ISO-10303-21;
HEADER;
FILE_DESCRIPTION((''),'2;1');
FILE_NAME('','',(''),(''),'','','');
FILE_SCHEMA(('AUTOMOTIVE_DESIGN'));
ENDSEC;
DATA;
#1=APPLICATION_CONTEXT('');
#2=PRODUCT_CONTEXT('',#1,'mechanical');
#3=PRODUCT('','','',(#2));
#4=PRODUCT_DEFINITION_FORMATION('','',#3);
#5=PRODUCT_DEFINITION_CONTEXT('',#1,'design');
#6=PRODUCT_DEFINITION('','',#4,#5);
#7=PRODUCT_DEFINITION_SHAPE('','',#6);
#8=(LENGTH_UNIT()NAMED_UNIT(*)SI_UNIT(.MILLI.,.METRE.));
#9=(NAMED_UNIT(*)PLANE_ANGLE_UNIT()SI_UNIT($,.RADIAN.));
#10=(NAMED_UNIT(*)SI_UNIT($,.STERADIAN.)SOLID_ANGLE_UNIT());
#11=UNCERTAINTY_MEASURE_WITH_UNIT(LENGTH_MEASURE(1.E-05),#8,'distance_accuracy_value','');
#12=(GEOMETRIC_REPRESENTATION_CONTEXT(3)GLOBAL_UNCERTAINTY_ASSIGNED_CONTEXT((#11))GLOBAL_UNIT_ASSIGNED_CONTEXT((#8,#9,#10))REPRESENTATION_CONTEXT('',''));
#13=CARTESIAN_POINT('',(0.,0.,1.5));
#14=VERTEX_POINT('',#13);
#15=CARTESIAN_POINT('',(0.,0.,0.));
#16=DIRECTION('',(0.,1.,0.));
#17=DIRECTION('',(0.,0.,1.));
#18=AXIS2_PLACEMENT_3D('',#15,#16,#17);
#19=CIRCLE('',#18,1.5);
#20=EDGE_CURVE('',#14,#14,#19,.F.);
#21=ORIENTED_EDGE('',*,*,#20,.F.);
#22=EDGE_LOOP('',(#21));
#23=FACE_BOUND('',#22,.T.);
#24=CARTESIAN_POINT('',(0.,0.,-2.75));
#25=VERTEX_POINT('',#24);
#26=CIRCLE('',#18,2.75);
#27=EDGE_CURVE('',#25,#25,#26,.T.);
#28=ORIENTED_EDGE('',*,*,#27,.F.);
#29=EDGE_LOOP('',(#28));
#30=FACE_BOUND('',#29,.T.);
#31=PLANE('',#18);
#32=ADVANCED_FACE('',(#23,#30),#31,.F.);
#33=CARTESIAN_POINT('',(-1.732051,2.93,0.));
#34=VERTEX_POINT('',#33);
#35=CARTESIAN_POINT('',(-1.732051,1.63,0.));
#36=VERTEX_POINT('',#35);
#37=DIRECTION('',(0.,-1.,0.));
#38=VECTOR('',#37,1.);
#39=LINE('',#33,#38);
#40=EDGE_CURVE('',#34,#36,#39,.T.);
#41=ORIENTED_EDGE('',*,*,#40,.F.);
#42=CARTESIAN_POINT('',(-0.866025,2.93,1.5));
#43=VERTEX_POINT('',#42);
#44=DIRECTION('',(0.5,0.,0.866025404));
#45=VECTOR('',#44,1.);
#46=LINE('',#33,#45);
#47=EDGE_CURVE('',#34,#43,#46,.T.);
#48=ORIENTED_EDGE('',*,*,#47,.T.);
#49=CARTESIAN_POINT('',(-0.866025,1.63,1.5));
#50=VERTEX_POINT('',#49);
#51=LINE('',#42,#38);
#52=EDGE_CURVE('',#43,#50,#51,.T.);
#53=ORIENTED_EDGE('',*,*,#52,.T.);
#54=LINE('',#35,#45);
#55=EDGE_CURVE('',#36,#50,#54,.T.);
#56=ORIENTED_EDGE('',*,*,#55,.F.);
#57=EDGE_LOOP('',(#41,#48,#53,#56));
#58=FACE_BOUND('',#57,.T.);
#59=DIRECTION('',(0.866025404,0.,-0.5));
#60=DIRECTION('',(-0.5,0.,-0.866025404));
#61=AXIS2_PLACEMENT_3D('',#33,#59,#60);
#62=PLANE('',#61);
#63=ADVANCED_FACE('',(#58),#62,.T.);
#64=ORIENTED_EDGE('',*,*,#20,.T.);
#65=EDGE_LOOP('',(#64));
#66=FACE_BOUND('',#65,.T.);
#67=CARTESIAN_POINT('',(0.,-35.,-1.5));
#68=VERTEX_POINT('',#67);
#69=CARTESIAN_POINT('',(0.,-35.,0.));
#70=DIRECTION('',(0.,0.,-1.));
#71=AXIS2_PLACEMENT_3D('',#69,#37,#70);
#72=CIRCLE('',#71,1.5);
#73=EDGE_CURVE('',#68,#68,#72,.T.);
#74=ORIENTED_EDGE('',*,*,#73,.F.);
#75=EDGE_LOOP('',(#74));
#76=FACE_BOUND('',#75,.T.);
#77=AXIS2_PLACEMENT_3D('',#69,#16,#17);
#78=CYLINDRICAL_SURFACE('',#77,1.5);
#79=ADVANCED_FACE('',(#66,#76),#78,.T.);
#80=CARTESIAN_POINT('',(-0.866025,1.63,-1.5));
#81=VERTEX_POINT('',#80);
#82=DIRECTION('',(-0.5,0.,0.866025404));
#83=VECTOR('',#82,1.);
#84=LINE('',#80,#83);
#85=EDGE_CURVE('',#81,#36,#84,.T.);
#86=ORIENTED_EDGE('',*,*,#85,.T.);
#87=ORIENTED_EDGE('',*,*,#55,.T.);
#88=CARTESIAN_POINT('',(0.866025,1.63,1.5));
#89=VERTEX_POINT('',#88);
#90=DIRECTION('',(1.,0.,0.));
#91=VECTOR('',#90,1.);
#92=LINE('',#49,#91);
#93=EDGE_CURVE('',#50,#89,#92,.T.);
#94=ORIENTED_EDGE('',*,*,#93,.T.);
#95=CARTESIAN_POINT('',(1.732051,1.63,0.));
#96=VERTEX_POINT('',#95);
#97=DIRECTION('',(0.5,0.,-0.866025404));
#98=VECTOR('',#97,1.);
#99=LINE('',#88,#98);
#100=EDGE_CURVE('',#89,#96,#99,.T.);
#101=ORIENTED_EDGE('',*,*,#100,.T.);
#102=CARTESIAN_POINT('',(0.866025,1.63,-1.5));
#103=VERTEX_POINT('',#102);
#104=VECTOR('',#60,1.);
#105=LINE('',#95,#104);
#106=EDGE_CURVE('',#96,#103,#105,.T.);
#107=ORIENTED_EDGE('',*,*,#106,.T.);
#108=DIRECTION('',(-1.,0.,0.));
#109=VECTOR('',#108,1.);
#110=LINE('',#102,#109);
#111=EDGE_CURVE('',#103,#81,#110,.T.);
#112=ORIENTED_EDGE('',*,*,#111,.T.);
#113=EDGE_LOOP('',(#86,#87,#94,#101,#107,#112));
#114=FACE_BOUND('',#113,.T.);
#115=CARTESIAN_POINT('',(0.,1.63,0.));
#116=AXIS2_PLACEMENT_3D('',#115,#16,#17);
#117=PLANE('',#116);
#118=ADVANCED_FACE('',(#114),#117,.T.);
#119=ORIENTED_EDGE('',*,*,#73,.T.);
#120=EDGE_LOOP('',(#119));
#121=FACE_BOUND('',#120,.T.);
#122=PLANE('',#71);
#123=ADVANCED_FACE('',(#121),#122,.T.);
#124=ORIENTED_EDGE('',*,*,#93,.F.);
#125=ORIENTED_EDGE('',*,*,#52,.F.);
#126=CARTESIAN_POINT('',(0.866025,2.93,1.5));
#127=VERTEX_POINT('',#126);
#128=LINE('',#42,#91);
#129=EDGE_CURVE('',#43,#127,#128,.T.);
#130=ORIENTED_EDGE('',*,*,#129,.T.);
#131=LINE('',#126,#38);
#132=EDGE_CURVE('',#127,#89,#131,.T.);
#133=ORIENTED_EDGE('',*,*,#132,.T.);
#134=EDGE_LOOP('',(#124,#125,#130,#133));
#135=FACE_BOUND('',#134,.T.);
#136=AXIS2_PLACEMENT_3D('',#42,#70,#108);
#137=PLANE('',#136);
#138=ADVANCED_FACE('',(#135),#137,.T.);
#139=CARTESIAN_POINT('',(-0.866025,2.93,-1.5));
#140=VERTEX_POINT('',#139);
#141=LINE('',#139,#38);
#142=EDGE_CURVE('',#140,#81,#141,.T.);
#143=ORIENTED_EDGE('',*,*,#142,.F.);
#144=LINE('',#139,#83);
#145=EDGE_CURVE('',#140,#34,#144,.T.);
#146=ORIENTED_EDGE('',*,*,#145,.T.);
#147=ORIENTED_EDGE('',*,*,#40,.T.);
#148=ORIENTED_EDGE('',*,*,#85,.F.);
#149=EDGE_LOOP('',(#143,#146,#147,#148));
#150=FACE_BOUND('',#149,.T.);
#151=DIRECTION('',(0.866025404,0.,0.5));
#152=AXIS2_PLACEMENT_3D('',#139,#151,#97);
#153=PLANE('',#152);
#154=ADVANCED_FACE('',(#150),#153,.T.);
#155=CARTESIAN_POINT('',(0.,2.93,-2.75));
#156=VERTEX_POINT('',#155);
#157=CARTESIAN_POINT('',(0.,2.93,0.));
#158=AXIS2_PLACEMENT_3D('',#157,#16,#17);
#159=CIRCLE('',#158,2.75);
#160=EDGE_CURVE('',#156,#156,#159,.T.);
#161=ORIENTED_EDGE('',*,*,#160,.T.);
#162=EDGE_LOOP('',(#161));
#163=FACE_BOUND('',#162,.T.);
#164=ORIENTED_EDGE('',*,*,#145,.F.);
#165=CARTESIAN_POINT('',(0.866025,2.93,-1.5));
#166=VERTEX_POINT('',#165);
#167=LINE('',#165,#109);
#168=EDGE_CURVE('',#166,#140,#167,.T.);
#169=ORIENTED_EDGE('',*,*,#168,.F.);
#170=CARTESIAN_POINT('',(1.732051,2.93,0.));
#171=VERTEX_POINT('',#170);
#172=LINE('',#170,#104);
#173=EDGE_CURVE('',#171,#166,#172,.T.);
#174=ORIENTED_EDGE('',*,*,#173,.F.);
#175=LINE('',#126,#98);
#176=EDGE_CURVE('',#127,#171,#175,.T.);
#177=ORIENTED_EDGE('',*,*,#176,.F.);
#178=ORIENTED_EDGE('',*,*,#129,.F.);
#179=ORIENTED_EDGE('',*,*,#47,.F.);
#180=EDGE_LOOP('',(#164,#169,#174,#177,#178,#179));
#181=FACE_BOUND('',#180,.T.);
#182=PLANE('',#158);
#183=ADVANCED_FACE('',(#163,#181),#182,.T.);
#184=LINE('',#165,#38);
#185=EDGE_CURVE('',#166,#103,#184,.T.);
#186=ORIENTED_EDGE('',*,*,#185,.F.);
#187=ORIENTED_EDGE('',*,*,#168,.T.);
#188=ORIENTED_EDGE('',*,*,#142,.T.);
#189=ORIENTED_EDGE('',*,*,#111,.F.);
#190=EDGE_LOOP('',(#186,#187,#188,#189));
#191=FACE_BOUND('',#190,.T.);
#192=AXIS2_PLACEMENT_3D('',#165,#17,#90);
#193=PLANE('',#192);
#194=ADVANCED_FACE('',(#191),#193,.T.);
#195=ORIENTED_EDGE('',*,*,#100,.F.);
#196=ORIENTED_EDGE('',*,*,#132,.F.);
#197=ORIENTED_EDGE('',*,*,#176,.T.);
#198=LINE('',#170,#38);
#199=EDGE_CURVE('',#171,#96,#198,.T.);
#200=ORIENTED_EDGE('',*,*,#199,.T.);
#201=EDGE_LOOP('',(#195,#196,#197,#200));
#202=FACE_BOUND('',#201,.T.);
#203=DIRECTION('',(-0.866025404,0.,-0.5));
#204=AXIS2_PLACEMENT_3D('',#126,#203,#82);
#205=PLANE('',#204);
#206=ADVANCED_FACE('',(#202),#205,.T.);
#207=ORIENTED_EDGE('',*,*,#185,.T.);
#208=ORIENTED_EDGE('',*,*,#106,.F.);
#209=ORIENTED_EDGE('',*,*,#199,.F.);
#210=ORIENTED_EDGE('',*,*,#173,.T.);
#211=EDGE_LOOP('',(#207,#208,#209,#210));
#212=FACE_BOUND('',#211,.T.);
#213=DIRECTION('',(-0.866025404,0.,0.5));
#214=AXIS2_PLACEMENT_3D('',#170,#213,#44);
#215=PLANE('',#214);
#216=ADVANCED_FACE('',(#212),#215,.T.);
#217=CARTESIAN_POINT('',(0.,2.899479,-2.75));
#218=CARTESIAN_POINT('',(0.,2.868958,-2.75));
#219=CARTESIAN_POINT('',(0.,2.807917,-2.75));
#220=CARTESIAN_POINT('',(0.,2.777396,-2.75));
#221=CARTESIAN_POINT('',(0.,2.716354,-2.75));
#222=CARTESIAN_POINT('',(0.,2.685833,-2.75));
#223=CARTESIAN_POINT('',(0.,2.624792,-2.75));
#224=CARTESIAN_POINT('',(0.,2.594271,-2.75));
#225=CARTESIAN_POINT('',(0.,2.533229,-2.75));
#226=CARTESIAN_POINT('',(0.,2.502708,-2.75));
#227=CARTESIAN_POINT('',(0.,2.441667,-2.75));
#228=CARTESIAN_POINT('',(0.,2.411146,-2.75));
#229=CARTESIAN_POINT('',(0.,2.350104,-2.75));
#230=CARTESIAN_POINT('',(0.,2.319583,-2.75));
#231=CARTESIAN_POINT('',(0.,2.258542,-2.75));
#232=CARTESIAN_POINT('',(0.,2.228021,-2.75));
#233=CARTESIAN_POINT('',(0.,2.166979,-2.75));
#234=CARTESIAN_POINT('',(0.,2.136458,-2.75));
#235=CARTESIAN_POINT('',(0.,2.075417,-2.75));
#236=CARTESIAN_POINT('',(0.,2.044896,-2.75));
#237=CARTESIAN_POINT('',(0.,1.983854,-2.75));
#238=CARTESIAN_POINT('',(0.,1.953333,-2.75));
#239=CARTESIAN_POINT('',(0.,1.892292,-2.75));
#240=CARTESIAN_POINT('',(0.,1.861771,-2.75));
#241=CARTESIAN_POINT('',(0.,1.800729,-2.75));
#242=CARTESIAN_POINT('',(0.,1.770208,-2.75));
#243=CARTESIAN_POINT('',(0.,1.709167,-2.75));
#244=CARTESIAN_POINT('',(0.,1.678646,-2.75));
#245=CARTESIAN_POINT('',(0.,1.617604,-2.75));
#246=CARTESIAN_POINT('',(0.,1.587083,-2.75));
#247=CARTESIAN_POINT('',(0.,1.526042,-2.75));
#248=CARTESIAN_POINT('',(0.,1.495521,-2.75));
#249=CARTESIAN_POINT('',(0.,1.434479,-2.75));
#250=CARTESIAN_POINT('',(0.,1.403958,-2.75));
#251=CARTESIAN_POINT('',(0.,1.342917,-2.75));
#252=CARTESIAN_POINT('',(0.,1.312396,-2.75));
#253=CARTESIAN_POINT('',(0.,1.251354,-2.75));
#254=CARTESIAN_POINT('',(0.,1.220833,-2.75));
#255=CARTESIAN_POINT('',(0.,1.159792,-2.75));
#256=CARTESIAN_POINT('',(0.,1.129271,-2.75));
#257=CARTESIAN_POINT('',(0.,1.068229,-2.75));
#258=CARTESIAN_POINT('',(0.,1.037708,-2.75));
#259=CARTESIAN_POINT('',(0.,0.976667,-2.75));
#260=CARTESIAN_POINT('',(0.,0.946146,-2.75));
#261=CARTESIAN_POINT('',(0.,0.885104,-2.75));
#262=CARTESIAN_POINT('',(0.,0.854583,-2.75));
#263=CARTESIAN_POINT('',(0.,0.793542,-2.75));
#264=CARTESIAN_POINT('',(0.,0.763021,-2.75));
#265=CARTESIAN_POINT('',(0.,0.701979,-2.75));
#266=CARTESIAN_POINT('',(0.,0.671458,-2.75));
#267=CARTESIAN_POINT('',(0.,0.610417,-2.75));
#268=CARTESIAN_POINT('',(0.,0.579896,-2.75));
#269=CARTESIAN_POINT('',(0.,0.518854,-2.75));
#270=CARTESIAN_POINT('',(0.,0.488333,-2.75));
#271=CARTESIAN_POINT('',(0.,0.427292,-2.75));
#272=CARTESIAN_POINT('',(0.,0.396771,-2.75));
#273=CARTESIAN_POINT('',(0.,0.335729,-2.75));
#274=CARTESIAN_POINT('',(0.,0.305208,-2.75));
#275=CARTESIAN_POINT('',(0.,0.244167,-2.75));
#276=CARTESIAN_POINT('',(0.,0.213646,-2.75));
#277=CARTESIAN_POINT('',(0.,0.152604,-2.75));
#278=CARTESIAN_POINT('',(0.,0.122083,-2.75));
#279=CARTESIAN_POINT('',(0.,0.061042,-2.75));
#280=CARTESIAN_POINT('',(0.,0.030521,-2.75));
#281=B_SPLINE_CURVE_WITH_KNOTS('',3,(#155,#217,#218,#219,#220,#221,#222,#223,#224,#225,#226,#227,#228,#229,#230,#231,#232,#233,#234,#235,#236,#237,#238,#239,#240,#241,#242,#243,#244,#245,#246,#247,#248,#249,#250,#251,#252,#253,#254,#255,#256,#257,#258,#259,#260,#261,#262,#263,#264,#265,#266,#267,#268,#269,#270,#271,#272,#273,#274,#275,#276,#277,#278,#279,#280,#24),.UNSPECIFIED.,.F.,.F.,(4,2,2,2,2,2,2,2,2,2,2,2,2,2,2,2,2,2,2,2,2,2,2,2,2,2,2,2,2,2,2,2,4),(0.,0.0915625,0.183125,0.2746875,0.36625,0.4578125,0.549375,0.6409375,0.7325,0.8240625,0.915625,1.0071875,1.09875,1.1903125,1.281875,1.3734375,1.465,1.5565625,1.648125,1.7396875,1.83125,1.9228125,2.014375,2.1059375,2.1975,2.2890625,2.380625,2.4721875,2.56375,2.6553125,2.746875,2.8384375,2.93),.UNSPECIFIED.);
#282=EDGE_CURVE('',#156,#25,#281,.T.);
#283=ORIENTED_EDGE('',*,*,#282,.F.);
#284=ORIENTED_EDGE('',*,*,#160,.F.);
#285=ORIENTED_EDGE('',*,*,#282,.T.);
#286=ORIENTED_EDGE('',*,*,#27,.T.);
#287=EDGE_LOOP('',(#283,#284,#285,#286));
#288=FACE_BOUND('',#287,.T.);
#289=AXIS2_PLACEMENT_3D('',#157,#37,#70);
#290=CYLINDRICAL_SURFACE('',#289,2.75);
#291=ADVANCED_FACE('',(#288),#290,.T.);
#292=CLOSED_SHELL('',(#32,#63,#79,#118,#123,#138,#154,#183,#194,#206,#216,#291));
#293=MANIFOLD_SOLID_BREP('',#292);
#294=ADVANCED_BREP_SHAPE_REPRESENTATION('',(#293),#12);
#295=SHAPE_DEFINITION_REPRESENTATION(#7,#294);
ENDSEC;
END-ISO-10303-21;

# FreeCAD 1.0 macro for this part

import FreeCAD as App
import Part
import Sketcher
Q = App.Units.Quantity

doc = App.newDocument("Part")
params = doc.addObject("Spreadsheet::Sheet", "Params")
for row, (alias, value) in enumerate([
    ("sketch1_diameter", "5.5 mm"),
    ("pad1_length", "2.93 mm"),
    ("pad2_length", "1.63 mm"),
    ("sketch3_diameter", "3 mm"),
    ("pad3_length", "35 mm"),
], start=1):
    params.set(f"A{row}", alias)
    params.set(f"B{row}", "=" + value)
    params.setAlias(f"B{row}", alias)

body = doc.addObject("PartDesign::Body", "Body")

sketch1 = body.newObject("Sketcher::SketchObject", "Sketch")
sketch1.AttachmentSupport = (doc.getObject("XZ_Plane"), [""])
sketch1.MapMode = "FlatFace"
sketch1.addGeometry(Part.Circle(App.Vector(0, 0, 0), App.Vector(0, 0, 1), 2.8), False)
sketch1.addGeometry(Part.LineSegment(App.Vector(-0.9, -1.5, 0), App.Vector(0.9, -1.5, 0)), False)
sketch1.addGeometry(Part.LineSegment(App.Vector(0.9, -1.5, 0), App.Vector(1.7, 0, 0)), False)
sketch1.addGeometry(Part.LineSegment(App.Vector(1.7, 0, 0), App.Vector(0.9, 1.5, 0)), False)
sketch1.addGeometry(Part.LineSegment(App.Vector(0.9, 1.5, 0), App.Vector(-0.9, 1.5, 0)), False)
sketch1.addGeometry(Part.LineSegment(App.Vector(-0.9, 1.5, 0), App.Vector(-1.7, 0, 0)), False)
sketch1.addGeometry(Part.LineSegment(App.Vector(-1.7, 0, 0), App.Vector(-0.9, -1.5, 0)), False)
sketch1.addConstraint(Sketcher.Constraint("Coincident", 1, 2, 2, 1))
sketch1.addConstraint(Sketcher.Constraint("Coincident", 2, 2, 3, 1))
sketch1.addConstraint(Sketcher.Constraint("Coincident", 3, 2, 4, 1))
sketch1.addConstraint(Sketcher.Constraint("Coincident", 4, 2, 5, 1))
sketch1.addConstraint(Sketcher.Constraint("Coincident", 5, 2, 6, 1))
sketch1.addConstraint(Sketcher.Constraint("Coincident", 6, 2, 1, 1))
sketch1.addConstraint(Sketcher.Constraint("Horizontal", 1))
sketch1.addConstraint(Sketcher.Constraint("Horizontal", 4))
sketch1.addConstraint(Sketcher.Constraint("Coincident", 0, 3, -1, 1))
sketch1.addConstraint(Sketcher.Constraint("Symmetric", 1, 2, 4, 2, -1, 1))
sketch1.addConstraint(Sketcher.Constraint("Symmetric", 2, 2, 5, 2, -1, 1))
sketch1.addConstraint(Sketcher.Constraint("PointOnObject", 2, 2, -1))
sketch1.addConstraint(Sketcher.Constraint("Parallel", 3, 6))
sketch1.addConstraint(Sketcher.Constraint("Vertical", 1, 2, 3, 2))
sketch1.addConstraint(Sketcher.Constraint("Diameter", 0, Q("5.5 mm")))
sketch1.addConstraint(Sketcher.Constraint("Angle", 2, Q("60 deg")))
sketch1.addConstraint(Sketcher.Constraint("DistanceY", 1, 2, 3, 2, Q("3 mm")))
sketch1.addConstraint(Sketcher.Constraint("DistanceX", 1, 1, 1, 2, Q("1.732051 mm")))
sketch1.setExpression("Constraints[14]", "Params.sketch1_diameter")
pad1 = body.newObject("PartDesign::Pad", "Pad")
pad1.Profile = sketch1
pad1.setExpression("Length", "Params.pad1_length")
pad1.Reversed = True

sketch2 = body.newObject("Sketcher::SketchObject", "Sketch001")
sketch2.AttachmentSupport = (doc.getObject("XZ_Plane"), [""])
sketch2.MapMode = "FlatFace"
sketch2.addGeometry(Part.LineSegment(App.Vector(0.9, -1.5, 0), App.Vector(-0.9, -1.5, 0)), False)
sketch2.addGeometry(Part.LineSegment(App.Vector(-0.9, -1.5, 0), App.Vector(-1.7, 0, 0)), False)
sketch2.addGeometry(Part.LineSegment(App.Vector(-1.7, 0, 0), App.Vector(-0.9, 1.5, 0)), False)
sketch2.addGeometry(Part.LineSegment(App.Vector(-0.9, 1.5, 0), App.Vector(0.9, 1.5, 0)), False)
sketch2.addGeometry(Part.LineSegment(App.Vector(0.9, 1.5, 0), App.Vector(1.7, 0, 0)), False)
sketch2.addGeometry(Part.LineSegment(App.Vector(1.7, 0, 0), App.Vector(0.9, -1.5, 0)), False)
sketch2.addConstraint(Sketcher.Constraint("Coincident", 0, 2, 1, 1))
sketch2.addConstraint(Sketcher.Constraint("Coincident", 1, 2, 2, 1))
sketch2.addConstraint(Sketcher.Constraint("Coincident", 2, 2, 3, 1))
sketch2.addConstraint(Sketcher.Constraint("Coincident", 3, 2, 4, 1))
sketch2.addConstraint(Sketcher.Constraint("Coincident", 4, 2, 5, 1))
sketch2.addConstraint(Sketcher.Constraint("Coincident", 5, 2, 0, 1))
sketch2.addConstraint(Sketcher.Constraint("Horizontal", 0))
sketch2.addConstraint(Sketcher.Constraint("Horizontal", 3))
sketch2.addConstraint(Sketcher.Constraint("Symmetric", 0, 2, 3, 2, -1, 1))
sketch2.addConstraint(Sketcher.Constraint("Symmetric", 1, 2, 4, 2, -1, 1))
sketch2.addConstraint(Sketcher.Constraint("PointOnObject", 1, 2, -1))
sketch2.addConstraint(Sketcher.Constraint("Parallel", 2, 5))
sketch2.addConstraint(Sketcher.Constraint("Vertical", 0, 2, 2, 2))
sketch2.addConstraint(Sketcher.Constraint("Angle", 1, Q("120 deg")))
sketch2.addConstraint(Sketcher.Constraint("DistanceY", 0, 2, 2, 2, Q("3 mm")))
sketch2.addConstraint(Sketcher.Constraint("DistanceX", 0, 2, 0, 1, Q("1.732051 mm")))
pad2 = body.newObject("PartDesign::Pad", "Pad001")
pad2.Profile = sketch2
pad2.setExpression("Length", "Params.pad2_length")
pad2.Reversed = True

sketch3 = body.newObject("Sketcher::SketchObject", "Sketch002")
sketch3.AttachmentSupport = (doc.getObject("XZ_Plane"), [""])
sketch3.MapMode = "FlatFace"
sketch3.addGeometry(Part.Circle(App.Vector(0, 0, 0), App.Vector(0, 0, 1), 1.5), False)
sketch3.addConstraint(Sketcher.Constraint("Coincident", 0, 3, -1, 1))
sketch3.addConstraint(Sketcher.Constraint("Diameter", 0, Q("3 mm")))
sketch3.setExpression("Constraints[1]", "Params.sketch3_diameter")
pad3 = body.newObject("PartDesign::Pad", "Pad002")
pad3.Profile = sketch3
pad3.setExpression("Length", "Params.pad3_length")

doc.recompute()
